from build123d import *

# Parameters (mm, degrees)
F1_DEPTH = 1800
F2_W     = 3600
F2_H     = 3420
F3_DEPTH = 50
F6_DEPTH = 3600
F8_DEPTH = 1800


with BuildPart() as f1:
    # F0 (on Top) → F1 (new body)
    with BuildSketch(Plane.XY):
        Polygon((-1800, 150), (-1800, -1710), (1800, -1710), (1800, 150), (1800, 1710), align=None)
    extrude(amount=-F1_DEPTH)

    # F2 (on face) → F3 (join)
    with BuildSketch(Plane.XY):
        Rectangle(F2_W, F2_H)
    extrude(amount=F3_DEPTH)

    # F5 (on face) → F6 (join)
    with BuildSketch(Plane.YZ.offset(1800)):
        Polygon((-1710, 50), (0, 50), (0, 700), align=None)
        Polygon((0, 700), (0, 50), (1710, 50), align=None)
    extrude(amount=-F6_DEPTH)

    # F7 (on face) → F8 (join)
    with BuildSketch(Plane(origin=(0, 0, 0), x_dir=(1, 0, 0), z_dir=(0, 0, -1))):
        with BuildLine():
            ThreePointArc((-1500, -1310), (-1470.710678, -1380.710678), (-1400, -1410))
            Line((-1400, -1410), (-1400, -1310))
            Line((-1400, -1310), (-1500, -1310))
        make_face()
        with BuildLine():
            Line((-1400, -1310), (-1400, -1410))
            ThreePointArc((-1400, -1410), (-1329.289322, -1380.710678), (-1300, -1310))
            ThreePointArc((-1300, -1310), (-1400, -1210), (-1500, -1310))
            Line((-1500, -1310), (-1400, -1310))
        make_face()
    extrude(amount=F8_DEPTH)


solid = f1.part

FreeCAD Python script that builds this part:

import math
import FreeCAD as App
import Part
import Sketcher

V = App.Vector
Q = App.Units.Quantity


def add_polygon(sketch, points):
    """Adds a closed chain of lines whose ends are joined by coincident constraints."""
    first, n = sketch.GeometryCount, len(points)
    for a, b in zip(points, points[1:] + points[:1]):
        sketch.addGeometry(Part.LineSegment(App.Vector(*a, 0), App.Vector(*b, 0)), False)
    for i in range(n):
        sketch.addConstraint(Sketcher.Constraint("Coincident", first + i, 2, first + (i + 1) % n, 1))

doc = App.newDocument("Part")
body = doc.addObject("PartDesign::Body", "Body")

# Sketch on XY plane
sketch1 = body.newObject("Sketcher::SketchObject", "Sketch")
sketch1.AttachmentSupport = (doc.getObject("XY_Plane"), [""])
sketch1.MapMode = "FlatFace"
add_polygon(sketch1, [(-1800, 150), (-1800, -1710), (1800, -1710), (1800, 1710)])  # lines 0-3
sketch1.addConstraint(Sketcher.Constraint("Vertical", 0))
sketch1.addConstraint(Sketcher.Constraint("Horizontal", 1))
sketch1.addConstraint(Sketcher.Constraint("Vertical", 2))
sketch1.addConstraint(Sketcher.Constraint("Symmetric", 0, 2, 2, 2, -1, 1))
sketch1.addConstraint(Sketcher.Constraint("DistanceX", 1, 1, 1, 2, Q("3600 mm")))
sketch1.addConstraint(Sketcher.Constraint("DistanceY", 0, 2, 0, 1, Q("1860 mm")))
sketch1.addConstraint(Sketcher.Constraint("DistanceY", 2, 1, 2, 2, Q("3420 mm")))
pad1 = body.newObject("PartDesign::Pad", "Pad")
pad1.Profile = sketch1
pad1.Length = 1800
pad1.Reversed = True

# Sketch on XY plane
sketch2 = body.newObject("Sketcher::SketchObject", "Sketch001")
sketch2.AttachmentSupport = (doc.getObject("XY_Plane"), [""])
sketch2.MapMode = "FlatFace"
add_polygon(sketch2, [(-1800, 1710), (-1800, -1710), (1800, -1710), (1800, 1710)])  # lines 0-3
sketch2.addConstraint(Sketcher.Constraint("Vertical", 0))
sketch2.addConstraint(Sketcher.Constraint("Horizontal", 1))
sketch2.addConstraint(Sketcher.Constraint("Vertical", 2))
sketch2.addConstraint(Sketcher.Constraint("Horizontal", 3))
sketch2.addConstraint(Sketcher.Constraint("Symmetric", 0, 2, 2, 2, -1, 1))
sketch2.addConstraint(Sketcher.Constraint("DistanceX", 1, 1, 1, 2, Q("3600 mm")))
sketch2.addConstraint(Sketcher.Constraint("DistanceY", 0, 2, 0, 1, Q("3420 mm")))
pad2 = body.newObject("PartDesign::Pad", "Pad001")
pad2.Profile = sketch2
pad2.Length = 50

# Sketch on YZ plane
sketch3 = body.newObject("Sketcher::SketchObject", "Sketch002")
sketch3.AttachmentSupport = (doc.getObject("YZ_Plane"), [""])
sketch3.MapMode = "FlatFace"
sketch3.AttachmentOffset = App.Placement(V(0, 0, 1800), App.Rotation())
add_polygon(sketch3, [(-1710, 50), (1710, 50), (0, 700)])  # lines 0-2
sketch3.addConstraint(Sketcher.Constraint("Horizontal", 0))
sketch3.addConstraint(Sketcher.Constraint("PointOnObject", 1, 2, -2))
sketch3.addConstraint(Sketcher.Constraint("Equal", 1, 2))
sketch3.addConstraint(Sketcher.Constraint("DistanceX", 0, 1, 0, 2, Q("3420 mm")))
sketch3.addConstraint(Sketcher.Constraint("DistanceY", -1, 1, 0, 2, Q("50 mm")))
sketch3.addConstraint(Sketcher.Constraint("DistanceY", -1, 1, 1, 2, Q("700 mm")))
pad3 = body.newObject("PartDesign::Pad", "Pad002")
pad3.Profile = sketch3
pad3.Length = 3600
pad3.Reversed = True

# Sketch on XY plane
sketch4 = body.newObject("Sketcher::SketchObject", "Sketch003")
sketch4.AttachmentSupport = (doc.getObject("XY_Plane"), [""])
sketch4.MapMode = "FlatFace"
sketch4.addGeometry(Part.ArcOfCircle(Part.Circle(V(-1400, 1310, 0), V(0, 0, 1), 100), math.radians(90), math.radians(180)), False)
sketch4.addGeometry(Part.ArcOfCircle(Part.Circle(V(-1400, 1310, 0), V(0, 0, 1), 100), math.radians(0), math.radians(90)), False)
sketch4.addGeometry(Part.ArcOfCircle(Part.Circle(V(-1400, 1310, 0), V(0, 0, 1), 100), math.radians(180), math.radians(360)), False)
sketch4.addConstraint(Sketcher.Constraint("Tangent", 0, 1, 1, 2))
sketch4.addConstraint(Sketcher.Constraint("Tangent", 1, 1, 2, 2))
sketch4.addConstraint(Sketcher.Constraint("Tangent", 2, 1, 0, 2))
sketch4.addConstraint(Sketcher.Constraint("Horizontal", 2, 3, 1, 1))
sketch4.addConstraint(Sketcher.Constraint("Horizontal", 1, 1, 2, 1))
sketch4.addConstraint(Sketcher.Constraint("Vertical", 2, 3, 0, 1))
sketch4.addConstraint(Sketcher.Constraint("Radius", 0, Q("100 mm")))
sketch4.addConstraint(Sketcher.Constraint("DistanceX", 0, 3, -1, 1, Q("1400 mm")))
sketch4.addConstraint(Sketcher.Constraint("DistanceY", -1, 1, 0, 3, Q("1310 mm")))
pad4 = body.newObject("PartDesign::Pad", "Pad003")
pad4.Profile = sketch4
pad4.Length = 1800
pad4.Reversed = True

doc.recompute()
